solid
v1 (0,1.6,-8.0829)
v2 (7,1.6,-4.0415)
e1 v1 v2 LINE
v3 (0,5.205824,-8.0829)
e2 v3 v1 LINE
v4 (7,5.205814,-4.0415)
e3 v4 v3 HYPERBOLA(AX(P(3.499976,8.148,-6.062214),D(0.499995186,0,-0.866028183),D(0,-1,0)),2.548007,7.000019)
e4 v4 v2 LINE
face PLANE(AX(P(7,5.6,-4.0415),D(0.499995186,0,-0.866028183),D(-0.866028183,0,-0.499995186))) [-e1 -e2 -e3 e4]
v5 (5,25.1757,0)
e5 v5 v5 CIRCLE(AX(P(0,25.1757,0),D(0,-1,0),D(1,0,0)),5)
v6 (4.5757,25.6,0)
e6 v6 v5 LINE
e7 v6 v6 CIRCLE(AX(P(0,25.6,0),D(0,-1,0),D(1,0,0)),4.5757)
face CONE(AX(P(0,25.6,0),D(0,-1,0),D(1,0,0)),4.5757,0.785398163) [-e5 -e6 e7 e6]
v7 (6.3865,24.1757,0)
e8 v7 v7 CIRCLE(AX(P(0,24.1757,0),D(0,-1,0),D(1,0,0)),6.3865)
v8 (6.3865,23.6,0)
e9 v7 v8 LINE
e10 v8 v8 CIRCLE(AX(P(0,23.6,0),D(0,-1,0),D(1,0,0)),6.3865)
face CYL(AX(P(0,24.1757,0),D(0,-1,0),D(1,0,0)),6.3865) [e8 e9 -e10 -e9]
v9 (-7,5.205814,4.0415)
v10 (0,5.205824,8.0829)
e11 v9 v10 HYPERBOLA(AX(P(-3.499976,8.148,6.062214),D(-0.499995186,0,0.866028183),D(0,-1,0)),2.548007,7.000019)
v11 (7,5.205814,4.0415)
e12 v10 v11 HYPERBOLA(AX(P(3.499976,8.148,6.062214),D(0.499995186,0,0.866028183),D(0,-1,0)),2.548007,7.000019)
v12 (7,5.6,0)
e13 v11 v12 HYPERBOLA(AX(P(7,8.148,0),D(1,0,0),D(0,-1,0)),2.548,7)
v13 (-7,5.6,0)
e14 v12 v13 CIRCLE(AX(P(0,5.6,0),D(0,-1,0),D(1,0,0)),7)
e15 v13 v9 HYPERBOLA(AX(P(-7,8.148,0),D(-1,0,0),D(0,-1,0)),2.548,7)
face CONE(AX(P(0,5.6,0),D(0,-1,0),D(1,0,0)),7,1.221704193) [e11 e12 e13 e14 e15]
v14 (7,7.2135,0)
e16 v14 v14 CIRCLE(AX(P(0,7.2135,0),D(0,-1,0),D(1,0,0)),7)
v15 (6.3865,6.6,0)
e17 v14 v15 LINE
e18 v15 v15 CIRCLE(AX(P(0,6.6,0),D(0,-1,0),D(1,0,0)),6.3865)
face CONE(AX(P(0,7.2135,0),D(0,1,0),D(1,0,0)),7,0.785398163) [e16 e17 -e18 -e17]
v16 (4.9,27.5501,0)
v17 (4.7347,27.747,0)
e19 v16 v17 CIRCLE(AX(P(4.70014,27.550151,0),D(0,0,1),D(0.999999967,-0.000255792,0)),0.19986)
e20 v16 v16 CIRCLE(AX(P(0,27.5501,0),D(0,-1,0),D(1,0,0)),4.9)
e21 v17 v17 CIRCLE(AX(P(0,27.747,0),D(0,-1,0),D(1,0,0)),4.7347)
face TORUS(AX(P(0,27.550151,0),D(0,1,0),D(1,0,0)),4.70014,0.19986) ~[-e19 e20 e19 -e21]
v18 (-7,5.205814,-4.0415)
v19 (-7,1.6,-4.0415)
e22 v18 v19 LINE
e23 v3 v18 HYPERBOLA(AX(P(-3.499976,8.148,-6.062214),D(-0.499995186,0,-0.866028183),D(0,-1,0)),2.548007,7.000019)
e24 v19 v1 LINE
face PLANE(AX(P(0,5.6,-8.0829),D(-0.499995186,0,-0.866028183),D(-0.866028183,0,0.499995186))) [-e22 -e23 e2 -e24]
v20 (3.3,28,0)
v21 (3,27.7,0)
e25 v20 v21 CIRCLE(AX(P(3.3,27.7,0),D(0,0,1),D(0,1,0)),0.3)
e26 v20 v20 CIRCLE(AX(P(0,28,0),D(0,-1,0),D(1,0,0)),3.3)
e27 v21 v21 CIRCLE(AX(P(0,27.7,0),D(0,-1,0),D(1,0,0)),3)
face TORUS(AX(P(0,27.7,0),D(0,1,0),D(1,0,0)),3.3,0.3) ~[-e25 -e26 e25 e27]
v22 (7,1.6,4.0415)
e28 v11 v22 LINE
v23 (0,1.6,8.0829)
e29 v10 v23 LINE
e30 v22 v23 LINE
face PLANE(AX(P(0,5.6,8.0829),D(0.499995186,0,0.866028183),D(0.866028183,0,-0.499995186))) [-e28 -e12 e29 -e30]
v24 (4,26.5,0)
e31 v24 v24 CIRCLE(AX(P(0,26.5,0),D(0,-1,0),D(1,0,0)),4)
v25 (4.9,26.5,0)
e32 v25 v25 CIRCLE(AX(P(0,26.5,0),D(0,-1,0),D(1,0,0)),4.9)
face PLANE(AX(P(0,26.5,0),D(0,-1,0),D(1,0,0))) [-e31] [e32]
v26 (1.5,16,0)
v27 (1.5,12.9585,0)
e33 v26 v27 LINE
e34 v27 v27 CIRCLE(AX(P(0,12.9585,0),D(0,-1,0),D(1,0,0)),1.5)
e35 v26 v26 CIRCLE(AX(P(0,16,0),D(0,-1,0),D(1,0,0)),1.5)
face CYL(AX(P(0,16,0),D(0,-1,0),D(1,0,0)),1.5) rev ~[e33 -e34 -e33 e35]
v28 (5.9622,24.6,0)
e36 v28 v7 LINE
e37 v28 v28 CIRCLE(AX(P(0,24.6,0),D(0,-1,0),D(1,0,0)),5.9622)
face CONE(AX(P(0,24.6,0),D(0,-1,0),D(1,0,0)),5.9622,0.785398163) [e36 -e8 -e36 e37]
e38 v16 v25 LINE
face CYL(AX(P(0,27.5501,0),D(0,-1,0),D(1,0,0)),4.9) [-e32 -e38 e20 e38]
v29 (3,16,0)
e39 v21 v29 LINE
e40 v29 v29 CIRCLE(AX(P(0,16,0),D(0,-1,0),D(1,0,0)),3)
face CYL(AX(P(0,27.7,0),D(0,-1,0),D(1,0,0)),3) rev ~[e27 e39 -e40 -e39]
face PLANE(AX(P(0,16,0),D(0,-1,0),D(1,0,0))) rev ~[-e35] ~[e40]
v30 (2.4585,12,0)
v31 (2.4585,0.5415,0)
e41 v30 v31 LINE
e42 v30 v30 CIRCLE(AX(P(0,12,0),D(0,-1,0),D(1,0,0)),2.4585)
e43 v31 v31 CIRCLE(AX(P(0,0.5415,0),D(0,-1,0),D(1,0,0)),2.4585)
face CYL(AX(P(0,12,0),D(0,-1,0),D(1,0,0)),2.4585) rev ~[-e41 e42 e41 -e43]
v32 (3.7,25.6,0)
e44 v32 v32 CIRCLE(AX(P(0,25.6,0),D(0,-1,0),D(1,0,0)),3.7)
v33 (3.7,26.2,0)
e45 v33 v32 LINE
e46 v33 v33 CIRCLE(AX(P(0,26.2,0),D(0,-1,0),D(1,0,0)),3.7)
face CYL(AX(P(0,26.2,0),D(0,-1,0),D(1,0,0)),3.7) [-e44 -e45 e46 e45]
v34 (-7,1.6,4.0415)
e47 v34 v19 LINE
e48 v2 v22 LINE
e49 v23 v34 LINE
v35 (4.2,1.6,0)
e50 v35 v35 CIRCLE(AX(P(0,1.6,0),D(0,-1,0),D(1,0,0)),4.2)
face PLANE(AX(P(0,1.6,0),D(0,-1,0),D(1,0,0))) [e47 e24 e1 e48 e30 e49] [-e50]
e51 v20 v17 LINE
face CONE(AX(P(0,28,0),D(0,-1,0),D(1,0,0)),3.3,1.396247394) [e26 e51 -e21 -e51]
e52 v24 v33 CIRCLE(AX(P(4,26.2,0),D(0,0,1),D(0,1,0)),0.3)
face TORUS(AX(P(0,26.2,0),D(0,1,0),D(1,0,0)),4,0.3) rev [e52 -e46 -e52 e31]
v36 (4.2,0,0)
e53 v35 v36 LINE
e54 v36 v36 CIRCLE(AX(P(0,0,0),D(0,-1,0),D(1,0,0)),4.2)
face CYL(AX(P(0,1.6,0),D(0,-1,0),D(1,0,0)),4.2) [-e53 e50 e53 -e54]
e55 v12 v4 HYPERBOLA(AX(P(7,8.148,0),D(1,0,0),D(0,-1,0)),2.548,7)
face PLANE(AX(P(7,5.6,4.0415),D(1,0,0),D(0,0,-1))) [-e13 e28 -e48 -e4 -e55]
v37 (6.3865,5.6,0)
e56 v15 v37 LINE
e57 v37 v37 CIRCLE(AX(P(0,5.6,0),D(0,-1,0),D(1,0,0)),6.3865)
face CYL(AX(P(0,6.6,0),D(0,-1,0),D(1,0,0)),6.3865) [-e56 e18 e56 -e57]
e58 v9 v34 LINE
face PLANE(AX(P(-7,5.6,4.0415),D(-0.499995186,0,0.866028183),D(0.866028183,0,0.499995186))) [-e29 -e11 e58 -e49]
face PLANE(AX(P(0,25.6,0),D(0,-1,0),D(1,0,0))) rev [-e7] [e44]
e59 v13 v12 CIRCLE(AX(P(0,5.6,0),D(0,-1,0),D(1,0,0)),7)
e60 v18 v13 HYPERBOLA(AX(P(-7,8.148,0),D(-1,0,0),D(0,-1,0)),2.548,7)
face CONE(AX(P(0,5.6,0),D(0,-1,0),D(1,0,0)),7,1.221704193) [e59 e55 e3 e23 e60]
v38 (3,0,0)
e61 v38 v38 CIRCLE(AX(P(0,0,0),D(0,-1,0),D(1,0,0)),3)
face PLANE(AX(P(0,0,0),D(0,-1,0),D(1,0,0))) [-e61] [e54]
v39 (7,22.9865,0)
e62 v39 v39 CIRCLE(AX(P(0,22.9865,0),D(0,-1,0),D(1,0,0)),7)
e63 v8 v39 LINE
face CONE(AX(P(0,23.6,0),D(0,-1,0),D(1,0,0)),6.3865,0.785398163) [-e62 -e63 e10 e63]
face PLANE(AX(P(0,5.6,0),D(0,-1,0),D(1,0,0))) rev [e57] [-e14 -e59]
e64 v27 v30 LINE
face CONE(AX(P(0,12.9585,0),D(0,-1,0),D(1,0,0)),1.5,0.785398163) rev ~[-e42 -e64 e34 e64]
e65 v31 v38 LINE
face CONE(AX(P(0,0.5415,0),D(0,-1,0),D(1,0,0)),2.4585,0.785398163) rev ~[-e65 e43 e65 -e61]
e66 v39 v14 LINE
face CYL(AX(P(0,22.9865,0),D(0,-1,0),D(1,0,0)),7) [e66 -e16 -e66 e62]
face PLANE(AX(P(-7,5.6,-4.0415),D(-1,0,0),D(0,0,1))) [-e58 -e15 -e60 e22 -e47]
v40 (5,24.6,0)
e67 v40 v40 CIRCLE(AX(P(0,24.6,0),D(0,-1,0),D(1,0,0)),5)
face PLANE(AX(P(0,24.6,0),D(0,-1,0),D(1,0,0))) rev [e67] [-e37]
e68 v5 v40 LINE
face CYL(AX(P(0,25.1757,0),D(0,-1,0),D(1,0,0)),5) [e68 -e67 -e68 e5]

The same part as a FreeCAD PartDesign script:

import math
import FreeCAD as App
import Part
import Sketcher
from FreeCAD import Vector
Q = App.Units.Quantity


def add_polygon(sketch, points):
    """Adds a closed chain of lines whose ends are joined by coincident constraints."""
    first, n = sketch.GeometryCount, len(points)
    for a, b in zip(points, points[1:] + points[:1]):
        sketch.addGeometry(Part.LineSegment(App.Vector(*a, 0), App.Vector(*b, 0)), False)
    for i in range(n):
        sketch.addConstraint(Sketcher.Constraint("Coincident", first + i, 2, first + (i + 1) % n, 1))

doc = App.newDocument("Part")
params = doc.addObject("Spreadsheet::Sheet", "Params")
for row, (alias, value) in enumerate([
    ("sketch1_radius", "0.3 mm"),
    ("sketch1_radius2", "0.2 mm"),
    ("sketch1_height", "28 mm"),
    ("sketch1_height2", "1 mm"),
    ("sketch1_width", "4.2 mm"),
    ("revolution_angle", "360 deg"),
    ("sketch2_radius", "0.3 mm"),
    ("sketch2_width", "3 mm"),
    ("sketch2_height", "28 mm"),
    ("sketch2_width2", "1.5 mm"),
    ("sketch2_height2", "11.7 mm"),
    ("groove_angle", "360 deg"),
    ("pocket1_length", "5.6 mm"),
], start=1):
    params.set(f"A{row}", alias)
    params.set(f"B{row}", "=" + value)
    params.setAlias(f"B{row}", alias)

body = doc.addObject("PartDesign::Body", "Body")

sketch1 = body.newObject("Sketcher::SketchObject", "Sketch")
sketch1.AttachmentSupport = (doc.getObject("XY_Plane"), [""])
sketch1.MapMode = "FlatFace"
sketch1.addGeometry([
    Part.LineSegment(Vector(0, 28, 0), Vector(0, 0, 0)),
    Part.LineSegment(Vector(0, 0, 0), Vector(4.2, 0, 0)),
    Part.LineSegment(Vector(4.2, 0, 0), Vector(4.2, 1.6, 0)),
    Part.LineSegment(Vector(4.2, 1.6, 0), Vector(8.4, 1.6, 0)),
    Part.LineSegment(Vector(8.4, 1.6, 0), Vector(8.4, 5.09, 0)),
    Part.LineSegment(Vector(8.4, 5.09, 0), Vector(7, 5.6, 0)),
    Part.LineSegment(Vector(7, 5.6, 0), Vector(6.39, 5.6, 0)),
    Part.LineSegment(Vector(6.39, 5.6, 0), Vector(6.39, 6.6, 0)),
    Part.LineSegment(Vector(6.39, 6.6, 0), Vector(7, 7.21, 0)),
    Part.LineSegment(Vector(7, 7.21, 0), Vector(7, 22.99, 0)),
    Part.LineSegment(Vector(7, 22.99, 0), Vector(6.39, 23.6, 0)),
    Part.LineSegment(Vector(6.39, 23.6, 0), Vector(6.39, 24.18, 0)),
    Part.LineSegment(Vector(6.39, 24.18, 0), Vector(5.96, 24.6, 0)),
    Part.LineSegment(Vector(5.96, 24.6, 0), Vector(5, 24.6, 0)),
    Part.LineSegment(Vector(5, 24.6, 0), Vector(5, 25.18, 0)),
    Part.LineSegment(Vector(5, 25.18, 0), Vector(4.58, 25.6, 0)),
    Part.LineSegment(Vector(4.58, 25.6, 0), Vector(3.7, 25.6, 0)),
    Part.LineSegment(Vector(3.7, 25.6, 0), Vector(3.7, 26.2, 0)),
    Part.ArcOfCircle(Part.Circle(Vector(4, 26.2, 0), Vector(0, 0, 1), 0.3), math.radians(90), math.radians(180)),
    Part.LineSegment(Vector(4, 26.5, 0), Vector(4.9, 26.5, 0)),
    Part.LineSegment(Vector(4.9, 26.5, 0), Vector(4.9, 27.55, 0)),
    Part.ArcOfCircle(Part.Circle(Vector(4.7, 27.55, 0), Vector(0, 0, 1), 0.2), math.radians(0), math.radians(80)),
    Part.LineSegment(Vector(4.73, 27.75, 0), Vector(3.3, 28, 0)),
    Part.LineSegment(Vector(3.3, 28, 0), Vector(0, 28, 0)),
], False)
sketch1.addConstraint([
    Sketcher.Constraint("Coincident", 0, 2, 1, 1),
    Sketcher.Constraint("Coincident", 1, 2, 2, 1),
    Sketcher.Constraint("Coincident", 2, 2, 3, 1),
    Sketcher.Constraint("Coincident", 3, 2, 4, 1),
    Sketcher.Constraint("Coincident", 4, 2, 5, 1),
    Sketcher.Constraint("Coincident", 5, 2, 6, 1),
    Sketcher.Constraint("Coincident", 6, 2, 7, 1),
    Sketcher.Constraint("Coincident", 7, 2, 8, 1),
    Sketcher.Constraint("Coincident", 8, 2, 9, 1),
    Sketcher.Constraint("Coincident", 9, 2, 10, 1),
    Sketcher.Constraint("Coincident", 10, 2, 11, 1),
    Sketcher.Constraint("Coincident", 11, 2, 12, 1),
    Sketcher.Constraint("Coincident", 12, 2, 13, 1),
    Sketcher.Constraint("Coincident", 13, 2, 14, 1),
    Sketcher.Constraint("Coincident", 14, 2, 15, 1),
    Sketcher.Constraint("Coincident", 15, 2, 16, 1),
    Sketcher.Constraint("Coincident", 16, 2, 17, 1),
    Sketcher.Constraint("Tangent", 17, 2, 18, 2),
    Sketcher.Constraint("Tangent", 18, 1, 19, 1),
    Sketcher.Constraint("Coincident", 19, 2, 20, 1),
    Sketcher.Constraint("Tangent", 20, 2, 21, 1),
    Sketcher.Constraint("Tangent", 21, 2, 22, 1),
    Sketcher.Constraint("Coincident", 22, 2, 23, 1),
    Sketcher.Constraint("Coincident", 23, 2, 0, 1),
    Sketcher.Constraint("Vertical", 0),
    Sketcher.Constraint("Horizontal", 1),
    Sketcher.Constraint("Vertical", 2),
    Sketcher.Constraint("Horizontal", 3),
    Sketcher.Constraint("Vertical", 4),
    Sketcher.Constraint("Horizontal", 6),
    Sketcher.Constraint("Vertical", 7),
    Sketcher.Constraint("Vertical", 9),
    Sketcher.Constraint("Vertical", 11),
    Sketcher.Constraint("Horizontal", 13),
    Sketcher.Constraint("Vertical", 14),
    Sketcher.Constraint("Horizontal", 16),
    Sketcher.Constraint("Vertical", 17),
    Sketcher.Constraint("Horizontal", 19),
    Sketcher.Constraint("Vertical", 20),
    Sketcher.Constraint("Horizontal", 23),
    Sketcher.Constraint("Coincident", 0, 2, -1, 1),
    Sketcher.Constraint("Perpendicular", 8, 10),
    Sketcher.Constraint("Parallel", 10, 12),
    Sketcher.Constraint("Parallel", 12, 15),
    Sketcher.Constraint("Vertical", 5, 2, 8, 2),
    Sketcher.Constraint("Vertical", 7, 2, 10, 2),
    Sketcher.Constraint("Equal", 1, 3),
    Sketcher.Constraint("Equal", 11, 14),
    Sketcher.Constraint("Equal", 8, 10),
    Sketcher.Constraint("Equal", 12, 15),
    Sketcher.Constraint("Radius", 18, 0.3),
    Sketcher.Constraint("Radius", 21, 0.2),
    Sketcher.Constraint("DistanceY", 0, 2, 0, 1, 28.0),
    Sketcher.Constraint("DistanceY", 7, 1, 7, 2, 1.0),
    Sketcher.Constraint("Angle", 22, Q("169.999 deg")),
    Sketcher.Constraint("DistanceX", 1, 1, 1, 2, 4.2),
    Sketcher.Constraint("DistanceX", 19, 1, 19, 2, 0.9),
    Sketcher.Constraint("DistanceX", 23, 2, 23, 1, 3.3),
    Sketcher.Constraint("DistanceY", 2, 1, 2, 2, 1.6),
    Sketcher.Constraint("DistanceY", 17, 1, 17, 2, 0.6),
    Sketcher.Constraint("DistanceX", -1, 1, 18, 3, 4.0),
    Sketcher.Constraint("DistanceX", -1, 1, 5, 2, 7.0),
    Sketcher.Constraint("DistanceX", -1, 1, 13, 2, 5.0),
    Sketcher.Constraint("DistanceY", 3, 2, 5, 2, 4.0),
    Sketcher.Constraint("DistanceY", 7, 2, 10, 2, 17.0),
    Sketcher.Constraint("DistanceY", 10, 2, 12, 2, 1.0),
    Sketcher.Constraint("Distance", 12, 0.6),
    Sketcher.Constraint("DistanceY", 9, 1, 9, 2, 15.773),
    Sketcher.Constraint("DistanceY", 4, 1, 4, 2, 3.4904),
])
sketch1.setExpression("Constraints[50]", "Params.sketch1_radius")
sketch1.setExpression("Constraints[51]", "Params.sketch1_radius2")
sketch1.setExpression("Constraints[52]", "Params.sketch1_height")
sketch1.setExpression("Constraints[53]", "Params.sketch1_height2")
sketch1.setExpression("Constraints[55]", "Params.sketch1_width")
revolution = body.newObject("PartDesign::Revolution", "Revolution")
revolution.Profile = sketch1
revolution.ReferenceAxis = (sketch1, ["V_Axis"])
revolution.setExpression("Angle", "Params.revolution_angle")

sketch2 = body.newObject("Sketcher::SketchObject", "Sketch001")
sketch2.AttachmentSupport = (doc.getObject("XY_Plane"), [""])
sketch2.MapMode = "FlatFace"
sketch2.addGeometry([
    Part.LineSegment(Vector(0, 28, 0), Vector(0, 0, 0)),
    Part.LineSegment(Vector(0, 0, 0), Vector(3, 0, 0)),
    Part.LineSegment(Vector(3, 0, 0), Vector(2.46, 0.54, 0)),
    Part.LineSegment(Vector(2.46, 0.54, 0), Vector(2.46, 12, 0)),
    Part.LineSegment(Vector(2.46, 12, 0), Vector(1.5, 12.96, 0)),
    Part.LineSegment(Vector(1.5, 12.96, 0), Vector(1.5, 16, 0)),
    Part.LineSegment(Vector(1.5, 16, 0), Vector(3, 16, 0)),
    Part.LineSegment(Vector(3, 16, 0), Vector(3, 27.7, 0)),
    Part.ArcOfCircle(Part.Circle(Vector(3.3, 27.7, 0), Vector(0, 0, 1), 0.3), math.radians(90), math.radians(180)),
    Part.LineSegment(Vector(3.3, 28, 0), Vector(0, 28, 0)),
], False)
sketch2.addConstraint([
    Sketcher.Constraint("Coincident", 0, 2, 1, 1),
    Sketcher.Constraint("Coincident", 1, 2, 2, 1),
    Sketcher.Constraint("Coincident", 2, 2, 3, 1),
    Sketcher.Constraint("Coincident", 3, 2, 4, 1),
    Sketcher.Constraint("Coincident", 4, 2, 5, 1),
    Sketcher.Constraint("Coincident", 5, 2, 6, 1),
    Sketcher.Constraint("Coincident", 6, 2, 7, 1),
    Sketcher.Constraint("Tangent", 7, 2, 8, 2),
    Sketcher.Constraint("Tangent", 8, 1, 9, 1),
    Sketcher.Constraint("Coincident", 9, 2, 0, 1),
    Sketcher.Constraint("Vertical", 0),
    Sketcher.Constraint("Horizontal", 1),
    Sketcher.Constraint("Vertical", 3),
    Sketcher.Constraint("Vertical", 5),
    Sketcher.Constraint("Horizontal", 6),
    Sketcher.Constraint("Vertical", 7),
    Sketcher.Constraint("Horizontal", 9),
    Sketcher.Constraint("Coincident", 0, 2, -1, 1),
    Sketcher.Constraint("Parallel", 2, 4),
    Sketcher.Constraint("Vertical", 1, 2, 6, 2),
    Sketcher.Constraint("Radius", 8, 0.3),
    Sketcher.Constraint("DistanceX", 1, 1, 1, 2, 3.0),
    Sketcher.Constraint("DistanceY", 0, 2, 0, 1, 28.0),
    Sketcher.Constraint("Angle", 2, Q("135 deg")),
    Sketcher.Constraint("DistanceX", 6, 1, 6, 2, 1.5),
    Sketcher.Constraint("DistanceY", 7, 1, 7, 2, 11.7),
    Sketcher.Constraint("DistanceY", -1, 1, 3, 2, 12.0),
    Sketcher.Constraint("DistanceY", 3, 1, 3, 2, 11.4585),
])
sketch2.setExpression("Constraints[20]", "Params.sketch2_radius")
sketch2.setExpression("Constraints[21]", "Params.sketch2_width")
sketch2.setExpression("Constraints[22]", "Params.sketch2_height")
sketch2.setExpression("Constraints[24]", "Params.sketch2_width2")
sketch2.setExpression("Constraints[25]", "Params.sketch2_height2")
groove = body.newObject("PartDesign::Groove", "Groove")
groove.Profile = sketch2
groove.ReferenceAxis = (sketch2, ["V_Axis"])
groove.setExpression("Angle", "Params.groove_angle")

sketch3 = body.newObject("Sketcher::SketchObject", "Sketch002")
sketch3.AttachmentSupport = (doc.getObject("XZ_Plane"), [""])
sketch3.MapMode = "FlatFace"
sketch3.AttachmentOffset = App.Placement(Vector(0, 0, -5.6), App.Rotation())
add_polygon(sketch3, [(-13, -14), (-13, 14), (13, 14), (13, -14)])
add_polygon(sketch3, [(0, 8), (-7, 4), (-7, -4), (0, -8), (7, -4), (7, 4)])
sketch3.addConstraint([
    Sketcher.Constraint("Vertical", 0),
    Sketcher.Constraint("Horizontal", 1),
    Sketcher.Constraint("Vertical", 2),
    Sketcher.Constraint("Horizontal", 3),
    Sketcher.Constraint("Vertical", 5),
    Sketcher.Constraint("Vertical", 8),
    Sketcher.Constraint("Symmetric", 4, 2, 7, 2, -1, 1),
    Sketcher.Constraint("Symmetric", 6, 2, 9, 2, -1, 1),
    Sketcher.Constraint("PointOnObject", 6, 2, -2),
    Sketcher.Constraint("Parallel", 6, 9),
    Sketcher.Constraint("Horizontal", 5, 2, 7, 2),
    Sketcher.Constraint("Angle", 4, Q("-150.0003 deg")),
    Sketcher.Constraint("DistanceX", 4, 2, -1, 1, 7.0),
    Sketcher.Constraint("DistanceY", 5, 2, 5, 1, 8.083),
    Sketcher.Constraint("DistanceX", 1, 1, 1, 2, 26.7302),
    Sketcher.Constraint("DistanceY", 0, 1, 0, 2, 27.5305),
    Sketcher.Constraint("DistanceX", 0, 2, -1, 1, 13.445),
    Sketcher.Constraint("DistanceY", -1, 1, 0, 2, 13.8453),
])
pocket1 = body.newObject("PartDesign::Pocket", "Pocket")
pocket1.Profile = sketch3
pocket1.setExpression("Length", "Params.pocket1_length")
pocket1.Reversed = True

doc.recompute()
